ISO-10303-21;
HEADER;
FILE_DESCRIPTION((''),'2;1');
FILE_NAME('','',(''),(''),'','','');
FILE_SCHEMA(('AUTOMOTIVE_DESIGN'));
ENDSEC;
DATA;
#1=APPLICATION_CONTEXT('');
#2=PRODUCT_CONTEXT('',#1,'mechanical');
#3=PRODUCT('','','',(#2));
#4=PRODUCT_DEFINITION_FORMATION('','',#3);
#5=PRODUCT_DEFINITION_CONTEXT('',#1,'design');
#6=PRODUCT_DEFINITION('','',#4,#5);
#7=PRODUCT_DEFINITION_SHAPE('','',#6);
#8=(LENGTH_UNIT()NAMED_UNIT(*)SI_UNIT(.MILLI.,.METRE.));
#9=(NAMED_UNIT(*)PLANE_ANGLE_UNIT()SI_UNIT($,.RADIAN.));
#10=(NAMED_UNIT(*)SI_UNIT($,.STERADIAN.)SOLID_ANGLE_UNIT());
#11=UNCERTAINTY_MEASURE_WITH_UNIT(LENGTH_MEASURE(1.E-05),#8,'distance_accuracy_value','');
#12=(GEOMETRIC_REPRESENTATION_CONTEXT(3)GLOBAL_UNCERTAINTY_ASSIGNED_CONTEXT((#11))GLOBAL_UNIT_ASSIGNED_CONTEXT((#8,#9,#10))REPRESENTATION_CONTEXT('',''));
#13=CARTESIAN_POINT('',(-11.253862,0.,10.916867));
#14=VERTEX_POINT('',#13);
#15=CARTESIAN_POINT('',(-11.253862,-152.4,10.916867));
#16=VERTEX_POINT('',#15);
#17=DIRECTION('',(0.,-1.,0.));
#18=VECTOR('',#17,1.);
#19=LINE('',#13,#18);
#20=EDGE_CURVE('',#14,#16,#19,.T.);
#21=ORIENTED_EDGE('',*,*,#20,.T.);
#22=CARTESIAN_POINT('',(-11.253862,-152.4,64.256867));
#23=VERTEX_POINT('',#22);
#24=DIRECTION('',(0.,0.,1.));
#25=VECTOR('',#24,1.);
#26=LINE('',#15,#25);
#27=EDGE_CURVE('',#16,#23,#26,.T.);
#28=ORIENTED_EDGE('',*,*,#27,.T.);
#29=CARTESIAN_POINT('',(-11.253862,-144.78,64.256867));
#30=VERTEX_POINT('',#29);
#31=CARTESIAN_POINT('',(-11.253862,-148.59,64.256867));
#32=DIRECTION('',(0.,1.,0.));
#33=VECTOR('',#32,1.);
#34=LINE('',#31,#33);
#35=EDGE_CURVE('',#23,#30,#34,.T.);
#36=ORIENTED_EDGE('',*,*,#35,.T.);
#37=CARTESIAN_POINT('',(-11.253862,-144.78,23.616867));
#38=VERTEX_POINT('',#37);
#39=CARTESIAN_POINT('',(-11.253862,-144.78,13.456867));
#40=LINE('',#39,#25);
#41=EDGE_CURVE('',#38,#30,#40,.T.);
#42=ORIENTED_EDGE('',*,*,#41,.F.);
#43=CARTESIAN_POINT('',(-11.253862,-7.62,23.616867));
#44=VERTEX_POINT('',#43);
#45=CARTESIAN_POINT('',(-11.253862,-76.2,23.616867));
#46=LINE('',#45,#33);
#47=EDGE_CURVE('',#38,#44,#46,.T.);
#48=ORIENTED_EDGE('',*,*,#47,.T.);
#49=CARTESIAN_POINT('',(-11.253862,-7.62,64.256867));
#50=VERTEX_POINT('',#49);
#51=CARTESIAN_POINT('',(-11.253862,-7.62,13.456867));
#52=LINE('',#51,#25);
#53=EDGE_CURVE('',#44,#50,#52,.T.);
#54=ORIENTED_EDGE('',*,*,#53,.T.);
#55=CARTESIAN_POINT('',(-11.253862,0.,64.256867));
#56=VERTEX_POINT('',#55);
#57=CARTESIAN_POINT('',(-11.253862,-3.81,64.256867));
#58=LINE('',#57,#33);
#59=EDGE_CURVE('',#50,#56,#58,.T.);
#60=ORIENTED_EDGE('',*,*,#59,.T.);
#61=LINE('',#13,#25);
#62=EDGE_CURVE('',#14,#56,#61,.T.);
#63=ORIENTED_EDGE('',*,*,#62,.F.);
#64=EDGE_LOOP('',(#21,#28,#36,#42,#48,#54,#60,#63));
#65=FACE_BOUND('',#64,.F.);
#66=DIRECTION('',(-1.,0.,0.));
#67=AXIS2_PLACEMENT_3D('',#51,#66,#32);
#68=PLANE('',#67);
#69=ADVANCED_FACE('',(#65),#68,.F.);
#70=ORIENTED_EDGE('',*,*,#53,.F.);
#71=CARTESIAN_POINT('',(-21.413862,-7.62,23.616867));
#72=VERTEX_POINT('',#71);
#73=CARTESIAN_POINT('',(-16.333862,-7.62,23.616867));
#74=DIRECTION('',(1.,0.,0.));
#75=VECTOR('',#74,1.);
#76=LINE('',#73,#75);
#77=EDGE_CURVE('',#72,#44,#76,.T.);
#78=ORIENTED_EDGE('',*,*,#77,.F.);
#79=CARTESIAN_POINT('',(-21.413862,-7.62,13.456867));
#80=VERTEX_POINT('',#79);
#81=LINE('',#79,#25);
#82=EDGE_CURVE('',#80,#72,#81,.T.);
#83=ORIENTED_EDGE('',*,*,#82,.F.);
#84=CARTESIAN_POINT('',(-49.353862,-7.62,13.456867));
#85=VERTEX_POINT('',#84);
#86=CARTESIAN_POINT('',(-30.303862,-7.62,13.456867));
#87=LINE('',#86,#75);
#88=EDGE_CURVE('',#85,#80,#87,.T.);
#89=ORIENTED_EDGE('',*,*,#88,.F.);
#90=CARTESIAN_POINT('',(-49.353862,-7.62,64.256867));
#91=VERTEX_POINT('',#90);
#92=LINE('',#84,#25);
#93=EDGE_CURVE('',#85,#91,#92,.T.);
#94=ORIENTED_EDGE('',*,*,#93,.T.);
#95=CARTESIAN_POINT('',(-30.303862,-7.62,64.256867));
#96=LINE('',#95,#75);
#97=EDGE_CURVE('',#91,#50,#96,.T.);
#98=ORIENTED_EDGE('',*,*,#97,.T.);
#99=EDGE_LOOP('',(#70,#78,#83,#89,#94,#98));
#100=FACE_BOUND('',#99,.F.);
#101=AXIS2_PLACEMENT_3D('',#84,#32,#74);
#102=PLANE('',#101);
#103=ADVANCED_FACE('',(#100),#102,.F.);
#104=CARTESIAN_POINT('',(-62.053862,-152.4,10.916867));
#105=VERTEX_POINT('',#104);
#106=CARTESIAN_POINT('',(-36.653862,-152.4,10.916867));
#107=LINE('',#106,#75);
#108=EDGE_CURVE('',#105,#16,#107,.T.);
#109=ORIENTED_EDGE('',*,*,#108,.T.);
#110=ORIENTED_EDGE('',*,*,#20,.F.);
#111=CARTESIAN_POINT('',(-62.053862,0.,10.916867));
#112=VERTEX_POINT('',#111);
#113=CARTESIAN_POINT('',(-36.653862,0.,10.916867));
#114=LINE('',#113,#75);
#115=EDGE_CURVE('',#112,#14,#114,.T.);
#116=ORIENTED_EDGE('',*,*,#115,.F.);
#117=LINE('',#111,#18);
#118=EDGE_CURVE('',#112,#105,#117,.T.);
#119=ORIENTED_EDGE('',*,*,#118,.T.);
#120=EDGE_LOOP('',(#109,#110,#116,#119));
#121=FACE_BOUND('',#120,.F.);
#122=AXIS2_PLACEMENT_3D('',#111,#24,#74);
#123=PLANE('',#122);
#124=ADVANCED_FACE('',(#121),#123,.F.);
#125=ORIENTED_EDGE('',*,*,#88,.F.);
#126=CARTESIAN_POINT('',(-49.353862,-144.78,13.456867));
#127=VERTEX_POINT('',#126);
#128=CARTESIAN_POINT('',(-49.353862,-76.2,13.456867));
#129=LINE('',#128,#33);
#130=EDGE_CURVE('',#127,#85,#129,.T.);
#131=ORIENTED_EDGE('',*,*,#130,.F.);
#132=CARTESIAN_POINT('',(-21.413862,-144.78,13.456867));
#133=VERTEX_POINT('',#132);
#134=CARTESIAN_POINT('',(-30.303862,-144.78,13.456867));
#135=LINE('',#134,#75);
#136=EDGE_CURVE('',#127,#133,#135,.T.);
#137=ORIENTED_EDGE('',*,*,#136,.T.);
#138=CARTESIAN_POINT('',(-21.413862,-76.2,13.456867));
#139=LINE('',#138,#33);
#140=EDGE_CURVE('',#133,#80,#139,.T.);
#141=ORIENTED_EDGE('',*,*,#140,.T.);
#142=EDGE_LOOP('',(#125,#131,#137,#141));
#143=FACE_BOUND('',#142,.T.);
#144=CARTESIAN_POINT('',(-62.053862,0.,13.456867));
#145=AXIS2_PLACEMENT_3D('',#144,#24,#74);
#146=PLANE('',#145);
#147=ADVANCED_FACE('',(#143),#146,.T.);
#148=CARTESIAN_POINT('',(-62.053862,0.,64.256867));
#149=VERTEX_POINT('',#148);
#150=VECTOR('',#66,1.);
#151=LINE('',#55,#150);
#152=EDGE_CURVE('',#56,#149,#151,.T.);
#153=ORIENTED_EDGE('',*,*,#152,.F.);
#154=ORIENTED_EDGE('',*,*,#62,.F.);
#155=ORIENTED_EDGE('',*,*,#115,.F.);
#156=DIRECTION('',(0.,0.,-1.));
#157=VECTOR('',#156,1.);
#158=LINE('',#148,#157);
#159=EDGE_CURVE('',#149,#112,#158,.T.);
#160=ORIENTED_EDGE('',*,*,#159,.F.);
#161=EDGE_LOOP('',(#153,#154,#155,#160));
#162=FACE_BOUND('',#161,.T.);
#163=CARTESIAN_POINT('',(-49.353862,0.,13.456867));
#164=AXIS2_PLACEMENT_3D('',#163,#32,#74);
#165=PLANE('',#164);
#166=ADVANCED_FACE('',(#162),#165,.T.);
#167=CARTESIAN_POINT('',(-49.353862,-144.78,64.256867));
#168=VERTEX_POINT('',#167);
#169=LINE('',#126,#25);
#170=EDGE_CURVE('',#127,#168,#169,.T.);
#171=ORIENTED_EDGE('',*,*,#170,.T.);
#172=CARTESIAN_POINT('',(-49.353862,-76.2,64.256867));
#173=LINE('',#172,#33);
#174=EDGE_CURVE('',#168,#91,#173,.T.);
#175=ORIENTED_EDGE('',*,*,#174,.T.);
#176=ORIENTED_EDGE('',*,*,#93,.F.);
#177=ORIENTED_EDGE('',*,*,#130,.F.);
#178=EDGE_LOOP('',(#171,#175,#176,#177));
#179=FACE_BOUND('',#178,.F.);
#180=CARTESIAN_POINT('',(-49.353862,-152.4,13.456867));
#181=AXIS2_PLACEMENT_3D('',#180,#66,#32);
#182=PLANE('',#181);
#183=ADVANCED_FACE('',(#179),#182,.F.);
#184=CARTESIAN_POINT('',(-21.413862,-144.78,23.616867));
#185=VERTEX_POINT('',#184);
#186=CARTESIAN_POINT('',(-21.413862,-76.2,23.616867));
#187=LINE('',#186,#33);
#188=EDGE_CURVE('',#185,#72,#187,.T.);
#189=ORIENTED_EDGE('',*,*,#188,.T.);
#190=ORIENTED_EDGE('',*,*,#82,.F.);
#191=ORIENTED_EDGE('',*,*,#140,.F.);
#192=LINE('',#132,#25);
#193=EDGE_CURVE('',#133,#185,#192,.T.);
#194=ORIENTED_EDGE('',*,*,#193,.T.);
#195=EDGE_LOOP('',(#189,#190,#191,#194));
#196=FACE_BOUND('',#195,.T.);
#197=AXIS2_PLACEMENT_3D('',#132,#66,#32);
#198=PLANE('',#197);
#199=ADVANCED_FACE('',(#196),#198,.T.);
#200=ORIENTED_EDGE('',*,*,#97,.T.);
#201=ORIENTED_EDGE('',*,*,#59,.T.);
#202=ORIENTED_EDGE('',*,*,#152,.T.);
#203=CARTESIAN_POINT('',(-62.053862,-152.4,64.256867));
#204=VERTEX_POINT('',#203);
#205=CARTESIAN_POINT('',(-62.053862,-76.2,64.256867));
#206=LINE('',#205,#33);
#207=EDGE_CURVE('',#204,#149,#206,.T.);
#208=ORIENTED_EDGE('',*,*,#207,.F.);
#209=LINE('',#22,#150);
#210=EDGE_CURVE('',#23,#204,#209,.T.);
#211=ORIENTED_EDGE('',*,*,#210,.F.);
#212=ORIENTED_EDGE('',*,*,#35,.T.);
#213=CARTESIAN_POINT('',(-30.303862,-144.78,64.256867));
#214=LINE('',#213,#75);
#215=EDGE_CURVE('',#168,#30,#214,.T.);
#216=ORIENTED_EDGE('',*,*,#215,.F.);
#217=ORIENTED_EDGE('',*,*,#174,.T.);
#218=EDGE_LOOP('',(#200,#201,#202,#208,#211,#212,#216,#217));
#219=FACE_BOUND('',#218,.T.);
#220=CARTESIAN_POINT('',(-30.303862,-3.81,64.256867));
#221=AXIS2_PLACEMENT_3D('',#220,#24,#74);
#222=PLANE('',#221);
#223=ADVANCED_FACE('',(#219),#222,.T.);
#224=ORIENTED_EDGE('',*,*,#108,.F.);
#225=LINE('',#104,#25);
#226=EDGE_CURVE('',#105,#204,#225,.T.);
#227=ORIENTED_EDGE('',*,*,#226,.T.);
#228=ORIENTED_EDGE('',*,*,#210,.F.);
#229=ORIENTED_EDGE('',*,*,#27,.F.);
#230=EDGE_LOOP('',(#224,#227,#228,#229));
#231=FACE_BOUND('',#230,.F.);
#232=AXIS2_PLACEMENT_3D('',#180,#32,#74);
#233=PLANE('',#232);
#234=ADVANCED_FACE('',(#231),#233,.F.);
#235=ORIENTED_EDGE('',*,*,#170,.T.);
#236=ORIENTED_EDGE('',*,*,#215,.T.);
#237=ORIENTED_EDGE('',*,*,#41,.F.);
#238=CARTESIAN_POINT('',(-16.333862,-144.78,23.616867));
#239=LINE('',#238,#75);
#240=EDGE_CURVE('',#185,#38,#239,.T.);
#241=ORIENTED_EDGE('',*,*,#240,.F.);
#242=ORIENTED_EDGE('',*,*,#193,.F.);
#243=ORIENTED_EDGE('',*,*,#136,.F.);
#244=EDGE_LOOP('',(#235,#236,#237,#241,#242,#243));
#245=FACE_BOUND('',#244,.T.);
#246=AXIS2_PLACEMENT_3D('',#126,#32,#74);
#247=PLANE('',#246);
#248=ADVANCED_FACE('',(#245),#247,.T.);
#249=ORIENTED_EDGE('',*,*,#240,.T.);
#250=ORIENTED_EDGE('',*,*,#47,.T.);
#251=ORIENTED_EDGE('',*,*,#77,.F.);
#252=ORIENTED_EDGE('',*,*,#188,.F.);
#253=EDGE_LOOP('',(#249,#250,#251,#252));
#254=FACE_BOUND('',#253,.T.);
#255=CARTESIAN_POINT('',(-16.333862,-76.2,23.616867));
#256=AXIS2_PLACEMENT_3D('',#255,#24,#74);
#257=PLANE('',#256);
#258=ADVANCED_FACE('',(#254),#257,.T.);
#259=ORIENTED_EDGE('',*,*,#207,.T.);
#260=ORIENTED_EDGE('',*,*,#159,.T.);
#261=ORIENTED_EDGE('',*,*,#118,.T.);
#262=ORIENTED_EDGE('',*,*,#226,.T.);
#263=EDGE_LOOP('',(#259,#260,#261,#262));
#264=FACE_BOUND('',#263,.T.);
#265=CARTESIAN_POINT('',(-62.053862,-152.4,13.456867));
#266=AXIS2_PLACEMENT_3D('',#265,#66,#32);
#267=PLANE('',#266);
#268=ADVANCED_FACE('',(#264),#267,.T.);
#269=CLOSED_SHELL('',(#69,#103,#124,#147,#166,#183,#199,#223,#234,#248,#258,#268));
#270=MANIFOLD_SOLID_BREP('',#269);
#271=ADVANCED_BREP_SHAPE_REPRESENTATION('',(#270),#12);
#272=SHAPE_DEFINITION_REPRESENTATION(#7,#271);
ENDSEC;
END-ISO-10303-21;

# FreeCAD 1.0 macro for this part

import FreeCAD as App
import Part
import Sketcher
Q = App.Units.Quantity


def add_polygon(sketch, points):
    """Adds a closed chain of lines whose ends are joined by coincident constraints."""
    first, n = sketch.GeometryCount, len(points)
    for a, b in zip(points, points[1:] + points[:1]):
        sketch.addGeometry(Part.LineSegment(App.Vector(*a, 0), App.Vector(*b, 0)), False)
    for i in range(n):
        sketch.addConstraint(Sketcher.Constraint("Coincident", first + i, 2, first + (i + 1) % n, 1))

doc = App.newDocument("Part")
body = doc.addObject("PartDesign::Body", "Body")

sketch1 = body.newObject("Sketcher::SketchObject", "Sketch")
sketch1.AttachmentSupport = (doc.getObject("XZ_Plane"), [""])
sketch1.MapMode = "FlatFace"
add_polygon(sketch1, [(-62.053862, 13.456867), (-62.053862, 10.916867), (-11.253862, 10.916867), (-11.253862, 13.456867)])
sketch1.addConstraint(Sketcher.Constraint("Vertical", 0))
sketch1.addConstraint(Sketcher.Constraint("Horizontal", 1))
sketch1.addConstraint(Sketcher.Constraint("Vertical", 2))
sketch1.addConstraint(Sketcher.Constraint("Horizontal", 3))
sketch1.addConstraint(Sketcher.Constraint("DistanceX", 1, 1, 1, 2, Q("2 in")))
sketch1.addConstraint(Sketcher.Constraint("DistanceY", 0, 2, 0, 1, Q("0.1 in")))
sketch1.addConstraint(Sketcher.Constraint("DistanceX", 0, 2, -1, 1, 62.053862))
sketch1.addConstraint(Sketcher.Constraint("DistanceY", -1, 1, 0, 2, 10.916867))
pad1 = body.newObject("PartDesign::Pad", "Pad")
pad1.Profile = sketch1
pad1.Length = Q("6 in")

sketch2 = body.newObject("Sketcher::SketchObject", "Sketch001")
sketch2.AttachmentSupport = (doc.getObject("XY_Plane"), [""])
sketch2.MapMode = "FlatFace"
sketch2.AttachmentOffset = App.Placement(App.Vector(0, 0, 13.456867), App.Rotation())
add_polygon(sketch2, [(-62.053862, 0), (-62.053862, -152.4), (-49.353862, -152.4), (-49.353862, 0)])
sketch2.addConstraint(Sketcher.Constraint("Vertical", 0))
sketch2.addConstraint(Sketcher.Constraint("Horizontal", 1))
sketch2.addConstraint(Sketcher.Constraint("Vertical", 2))
sketch2.addConstraint(Sketcher.Constraint("Horizontal", 3))
sketch2.addConstraint(Sketcher.Constraint("PointOnObject", 2, 2, -1))
sketch2.addConstraint(Sketcher.Constraint("DistanceY", 0, 2, 0, 1, Q("6 in")))
sketch2.addConstraint(Sketcher.Constraint("DistanceX", 1, 1, 1, 2, Q("0.5 in")))
sketch2.addConstraint(Sketcher.Constraint("DistanceX", 0, 2, -1, 1, 62.053862))
pad2 = body.newObject("PartDesign::Pad", "Pad001")
pad2.Profile = sketch2
pad2.Length = Q("2 in")

sketch3 = body.newObject("Sketcher::SketchObject", "Sketch002")
sketch3.AttachmentSupport = (doc.getObject("XY_Plane"), [""])
sketch3.MapMode = "FlatFace"
sketch3.AttachmentOffset = App.Placement(App.Vector(0, 0, 13.456867), App.Rotation())
add_polygon(sketch3, [(-49.353862, -144.78), (-49.353862, -152.4), (-11.253862, -152.4), (-11.253862, -144.78)])
sketch3.addConstraint(Sketcher.Constraint("Vertical", 0))
sketch3.addConstraint(Sketcher.Constraint("Horizontal", 1))
sketch3.addConstraint(Sketcher.Constraint("Vertical", 2))
sketch3.addConstraint(Sketcher.Constraint("Horizontal", 3))
sketch3.addConstraint(Sketcher.Constraint("DistanceX", 1, 1, 1, 2, Q("1.5 in")))
sketch3.addConstraint(Sketcher.Constraint("DistanceY", 0, 2, 0, 1, Q("0.3 in")))
sketch3.addConstraint(Sketcher.Constraint("DistanceY", 0, 2, -1, 1, Q("6 in")))
sketch3.addConstraint(Sketcher.Constraint("DistanceX", 0, 2, -1, 1, 49.353862))
pad3 = body.newObject("PartDesign::Pad", "Pad002")
pad3.Profile = sketch3
pad3.Length = Q("2 in")

sketch4 = body.newObject("Sketcher::SketchObject", "Sketch003")
sketch4.AttachmentSupport = (doc.getObject("XY_Plane"), [""])
sketch4.MapMode = "FlatFace"
sketch4.AttachmentOffset = App.Placement(App.Vector(0, 0, 13.456867), App.Rotation())
add_polygon(sketch4, [(-49.353862, 0), (-49.353862, -7.62), (-11.253862, -7.62), (-11.253862, 0)])
sketch4.addConstraint(Sketcher.Constraint("Vertical", 0))
sketch4.addConstraint(Sketcher.Constraint("Horizontal", 1))
sketch4.addConstraint(Sketcher.Constraint("Vertical", 2))
sketch4.addConstraint(Sketcher.Constraint("Horizontal", 3))
sketch4.addConstraint(Sketcher.Constraint("PointOnObject", 2, 2, -1))
sketch4.addConstraint(Sketcher.Constraint("DistanceX", 1, 1, 1, 2, Q("1.5 in")))
sketch4.addConstraint(Sketcher.Constraint("DistanceY", 0, 2, 0, 1, Q("0.3 in")))
sketch4.addConstraint(Sketcher.Constraint("DistanceX", 0, 2, -1, 1, 49.353862))
pad4 = body.newObject("PartDesign::Pad", "Pad003")
pad4.Profile = sketch4
pad4.Length = Q("2 in")

sketch5 = body.newObject("Sketcher::SketchObject", "Sketch004")
sketch5.AttachmentSupport = (doc.getObject("XY_Plane"), [""])
sketch5.MapMode = "FlatFace"
sketch5.AttachmentOffset = App.Placement(App.Vector(0, 0, 13.456867), App.Rotation())
add_polygon(sketch5, [(-21.413862, -7.62), (-21.413862, -144.78), (-11.253862, -144.78), (-11.253862, -7.62)])
sketch5.addConstraint(Sketcher.Constraint("Vertical", 0))
sketch5.addConstraint(Sketcher.Constraint("Horizontal", 1))
sketch5.addConstraint(Sketcher.Constraint("Vertical", 2))
sketch5.addConstraint(Sketcher.Constraint("Horizontal", 3))
sketch5.addConstraint(Sketcher.Constraint("DistanceX", 1, 1, 1, 2, Q("0.4 in")))
sketch5.addConstraint(Sketcher.Constraint("DistanceY", 0, 2, 0, 1, Q("5.4 in")))
sketch5.addConstraint(Sketcher.Constraint("DistanceY", 0, 2, -1, 1, Q("5.7 in")))
sketch5.addConstraint(Sketcher.Constraint("DistanceX", 0, 2, -1, 1, 21.413862))
pad5 = body.newObject("PartDesign::Pad", "Pad004")
pad5.Profile = sketch5
pad5.Length = Q("0.4 in")

doc.recompute()
